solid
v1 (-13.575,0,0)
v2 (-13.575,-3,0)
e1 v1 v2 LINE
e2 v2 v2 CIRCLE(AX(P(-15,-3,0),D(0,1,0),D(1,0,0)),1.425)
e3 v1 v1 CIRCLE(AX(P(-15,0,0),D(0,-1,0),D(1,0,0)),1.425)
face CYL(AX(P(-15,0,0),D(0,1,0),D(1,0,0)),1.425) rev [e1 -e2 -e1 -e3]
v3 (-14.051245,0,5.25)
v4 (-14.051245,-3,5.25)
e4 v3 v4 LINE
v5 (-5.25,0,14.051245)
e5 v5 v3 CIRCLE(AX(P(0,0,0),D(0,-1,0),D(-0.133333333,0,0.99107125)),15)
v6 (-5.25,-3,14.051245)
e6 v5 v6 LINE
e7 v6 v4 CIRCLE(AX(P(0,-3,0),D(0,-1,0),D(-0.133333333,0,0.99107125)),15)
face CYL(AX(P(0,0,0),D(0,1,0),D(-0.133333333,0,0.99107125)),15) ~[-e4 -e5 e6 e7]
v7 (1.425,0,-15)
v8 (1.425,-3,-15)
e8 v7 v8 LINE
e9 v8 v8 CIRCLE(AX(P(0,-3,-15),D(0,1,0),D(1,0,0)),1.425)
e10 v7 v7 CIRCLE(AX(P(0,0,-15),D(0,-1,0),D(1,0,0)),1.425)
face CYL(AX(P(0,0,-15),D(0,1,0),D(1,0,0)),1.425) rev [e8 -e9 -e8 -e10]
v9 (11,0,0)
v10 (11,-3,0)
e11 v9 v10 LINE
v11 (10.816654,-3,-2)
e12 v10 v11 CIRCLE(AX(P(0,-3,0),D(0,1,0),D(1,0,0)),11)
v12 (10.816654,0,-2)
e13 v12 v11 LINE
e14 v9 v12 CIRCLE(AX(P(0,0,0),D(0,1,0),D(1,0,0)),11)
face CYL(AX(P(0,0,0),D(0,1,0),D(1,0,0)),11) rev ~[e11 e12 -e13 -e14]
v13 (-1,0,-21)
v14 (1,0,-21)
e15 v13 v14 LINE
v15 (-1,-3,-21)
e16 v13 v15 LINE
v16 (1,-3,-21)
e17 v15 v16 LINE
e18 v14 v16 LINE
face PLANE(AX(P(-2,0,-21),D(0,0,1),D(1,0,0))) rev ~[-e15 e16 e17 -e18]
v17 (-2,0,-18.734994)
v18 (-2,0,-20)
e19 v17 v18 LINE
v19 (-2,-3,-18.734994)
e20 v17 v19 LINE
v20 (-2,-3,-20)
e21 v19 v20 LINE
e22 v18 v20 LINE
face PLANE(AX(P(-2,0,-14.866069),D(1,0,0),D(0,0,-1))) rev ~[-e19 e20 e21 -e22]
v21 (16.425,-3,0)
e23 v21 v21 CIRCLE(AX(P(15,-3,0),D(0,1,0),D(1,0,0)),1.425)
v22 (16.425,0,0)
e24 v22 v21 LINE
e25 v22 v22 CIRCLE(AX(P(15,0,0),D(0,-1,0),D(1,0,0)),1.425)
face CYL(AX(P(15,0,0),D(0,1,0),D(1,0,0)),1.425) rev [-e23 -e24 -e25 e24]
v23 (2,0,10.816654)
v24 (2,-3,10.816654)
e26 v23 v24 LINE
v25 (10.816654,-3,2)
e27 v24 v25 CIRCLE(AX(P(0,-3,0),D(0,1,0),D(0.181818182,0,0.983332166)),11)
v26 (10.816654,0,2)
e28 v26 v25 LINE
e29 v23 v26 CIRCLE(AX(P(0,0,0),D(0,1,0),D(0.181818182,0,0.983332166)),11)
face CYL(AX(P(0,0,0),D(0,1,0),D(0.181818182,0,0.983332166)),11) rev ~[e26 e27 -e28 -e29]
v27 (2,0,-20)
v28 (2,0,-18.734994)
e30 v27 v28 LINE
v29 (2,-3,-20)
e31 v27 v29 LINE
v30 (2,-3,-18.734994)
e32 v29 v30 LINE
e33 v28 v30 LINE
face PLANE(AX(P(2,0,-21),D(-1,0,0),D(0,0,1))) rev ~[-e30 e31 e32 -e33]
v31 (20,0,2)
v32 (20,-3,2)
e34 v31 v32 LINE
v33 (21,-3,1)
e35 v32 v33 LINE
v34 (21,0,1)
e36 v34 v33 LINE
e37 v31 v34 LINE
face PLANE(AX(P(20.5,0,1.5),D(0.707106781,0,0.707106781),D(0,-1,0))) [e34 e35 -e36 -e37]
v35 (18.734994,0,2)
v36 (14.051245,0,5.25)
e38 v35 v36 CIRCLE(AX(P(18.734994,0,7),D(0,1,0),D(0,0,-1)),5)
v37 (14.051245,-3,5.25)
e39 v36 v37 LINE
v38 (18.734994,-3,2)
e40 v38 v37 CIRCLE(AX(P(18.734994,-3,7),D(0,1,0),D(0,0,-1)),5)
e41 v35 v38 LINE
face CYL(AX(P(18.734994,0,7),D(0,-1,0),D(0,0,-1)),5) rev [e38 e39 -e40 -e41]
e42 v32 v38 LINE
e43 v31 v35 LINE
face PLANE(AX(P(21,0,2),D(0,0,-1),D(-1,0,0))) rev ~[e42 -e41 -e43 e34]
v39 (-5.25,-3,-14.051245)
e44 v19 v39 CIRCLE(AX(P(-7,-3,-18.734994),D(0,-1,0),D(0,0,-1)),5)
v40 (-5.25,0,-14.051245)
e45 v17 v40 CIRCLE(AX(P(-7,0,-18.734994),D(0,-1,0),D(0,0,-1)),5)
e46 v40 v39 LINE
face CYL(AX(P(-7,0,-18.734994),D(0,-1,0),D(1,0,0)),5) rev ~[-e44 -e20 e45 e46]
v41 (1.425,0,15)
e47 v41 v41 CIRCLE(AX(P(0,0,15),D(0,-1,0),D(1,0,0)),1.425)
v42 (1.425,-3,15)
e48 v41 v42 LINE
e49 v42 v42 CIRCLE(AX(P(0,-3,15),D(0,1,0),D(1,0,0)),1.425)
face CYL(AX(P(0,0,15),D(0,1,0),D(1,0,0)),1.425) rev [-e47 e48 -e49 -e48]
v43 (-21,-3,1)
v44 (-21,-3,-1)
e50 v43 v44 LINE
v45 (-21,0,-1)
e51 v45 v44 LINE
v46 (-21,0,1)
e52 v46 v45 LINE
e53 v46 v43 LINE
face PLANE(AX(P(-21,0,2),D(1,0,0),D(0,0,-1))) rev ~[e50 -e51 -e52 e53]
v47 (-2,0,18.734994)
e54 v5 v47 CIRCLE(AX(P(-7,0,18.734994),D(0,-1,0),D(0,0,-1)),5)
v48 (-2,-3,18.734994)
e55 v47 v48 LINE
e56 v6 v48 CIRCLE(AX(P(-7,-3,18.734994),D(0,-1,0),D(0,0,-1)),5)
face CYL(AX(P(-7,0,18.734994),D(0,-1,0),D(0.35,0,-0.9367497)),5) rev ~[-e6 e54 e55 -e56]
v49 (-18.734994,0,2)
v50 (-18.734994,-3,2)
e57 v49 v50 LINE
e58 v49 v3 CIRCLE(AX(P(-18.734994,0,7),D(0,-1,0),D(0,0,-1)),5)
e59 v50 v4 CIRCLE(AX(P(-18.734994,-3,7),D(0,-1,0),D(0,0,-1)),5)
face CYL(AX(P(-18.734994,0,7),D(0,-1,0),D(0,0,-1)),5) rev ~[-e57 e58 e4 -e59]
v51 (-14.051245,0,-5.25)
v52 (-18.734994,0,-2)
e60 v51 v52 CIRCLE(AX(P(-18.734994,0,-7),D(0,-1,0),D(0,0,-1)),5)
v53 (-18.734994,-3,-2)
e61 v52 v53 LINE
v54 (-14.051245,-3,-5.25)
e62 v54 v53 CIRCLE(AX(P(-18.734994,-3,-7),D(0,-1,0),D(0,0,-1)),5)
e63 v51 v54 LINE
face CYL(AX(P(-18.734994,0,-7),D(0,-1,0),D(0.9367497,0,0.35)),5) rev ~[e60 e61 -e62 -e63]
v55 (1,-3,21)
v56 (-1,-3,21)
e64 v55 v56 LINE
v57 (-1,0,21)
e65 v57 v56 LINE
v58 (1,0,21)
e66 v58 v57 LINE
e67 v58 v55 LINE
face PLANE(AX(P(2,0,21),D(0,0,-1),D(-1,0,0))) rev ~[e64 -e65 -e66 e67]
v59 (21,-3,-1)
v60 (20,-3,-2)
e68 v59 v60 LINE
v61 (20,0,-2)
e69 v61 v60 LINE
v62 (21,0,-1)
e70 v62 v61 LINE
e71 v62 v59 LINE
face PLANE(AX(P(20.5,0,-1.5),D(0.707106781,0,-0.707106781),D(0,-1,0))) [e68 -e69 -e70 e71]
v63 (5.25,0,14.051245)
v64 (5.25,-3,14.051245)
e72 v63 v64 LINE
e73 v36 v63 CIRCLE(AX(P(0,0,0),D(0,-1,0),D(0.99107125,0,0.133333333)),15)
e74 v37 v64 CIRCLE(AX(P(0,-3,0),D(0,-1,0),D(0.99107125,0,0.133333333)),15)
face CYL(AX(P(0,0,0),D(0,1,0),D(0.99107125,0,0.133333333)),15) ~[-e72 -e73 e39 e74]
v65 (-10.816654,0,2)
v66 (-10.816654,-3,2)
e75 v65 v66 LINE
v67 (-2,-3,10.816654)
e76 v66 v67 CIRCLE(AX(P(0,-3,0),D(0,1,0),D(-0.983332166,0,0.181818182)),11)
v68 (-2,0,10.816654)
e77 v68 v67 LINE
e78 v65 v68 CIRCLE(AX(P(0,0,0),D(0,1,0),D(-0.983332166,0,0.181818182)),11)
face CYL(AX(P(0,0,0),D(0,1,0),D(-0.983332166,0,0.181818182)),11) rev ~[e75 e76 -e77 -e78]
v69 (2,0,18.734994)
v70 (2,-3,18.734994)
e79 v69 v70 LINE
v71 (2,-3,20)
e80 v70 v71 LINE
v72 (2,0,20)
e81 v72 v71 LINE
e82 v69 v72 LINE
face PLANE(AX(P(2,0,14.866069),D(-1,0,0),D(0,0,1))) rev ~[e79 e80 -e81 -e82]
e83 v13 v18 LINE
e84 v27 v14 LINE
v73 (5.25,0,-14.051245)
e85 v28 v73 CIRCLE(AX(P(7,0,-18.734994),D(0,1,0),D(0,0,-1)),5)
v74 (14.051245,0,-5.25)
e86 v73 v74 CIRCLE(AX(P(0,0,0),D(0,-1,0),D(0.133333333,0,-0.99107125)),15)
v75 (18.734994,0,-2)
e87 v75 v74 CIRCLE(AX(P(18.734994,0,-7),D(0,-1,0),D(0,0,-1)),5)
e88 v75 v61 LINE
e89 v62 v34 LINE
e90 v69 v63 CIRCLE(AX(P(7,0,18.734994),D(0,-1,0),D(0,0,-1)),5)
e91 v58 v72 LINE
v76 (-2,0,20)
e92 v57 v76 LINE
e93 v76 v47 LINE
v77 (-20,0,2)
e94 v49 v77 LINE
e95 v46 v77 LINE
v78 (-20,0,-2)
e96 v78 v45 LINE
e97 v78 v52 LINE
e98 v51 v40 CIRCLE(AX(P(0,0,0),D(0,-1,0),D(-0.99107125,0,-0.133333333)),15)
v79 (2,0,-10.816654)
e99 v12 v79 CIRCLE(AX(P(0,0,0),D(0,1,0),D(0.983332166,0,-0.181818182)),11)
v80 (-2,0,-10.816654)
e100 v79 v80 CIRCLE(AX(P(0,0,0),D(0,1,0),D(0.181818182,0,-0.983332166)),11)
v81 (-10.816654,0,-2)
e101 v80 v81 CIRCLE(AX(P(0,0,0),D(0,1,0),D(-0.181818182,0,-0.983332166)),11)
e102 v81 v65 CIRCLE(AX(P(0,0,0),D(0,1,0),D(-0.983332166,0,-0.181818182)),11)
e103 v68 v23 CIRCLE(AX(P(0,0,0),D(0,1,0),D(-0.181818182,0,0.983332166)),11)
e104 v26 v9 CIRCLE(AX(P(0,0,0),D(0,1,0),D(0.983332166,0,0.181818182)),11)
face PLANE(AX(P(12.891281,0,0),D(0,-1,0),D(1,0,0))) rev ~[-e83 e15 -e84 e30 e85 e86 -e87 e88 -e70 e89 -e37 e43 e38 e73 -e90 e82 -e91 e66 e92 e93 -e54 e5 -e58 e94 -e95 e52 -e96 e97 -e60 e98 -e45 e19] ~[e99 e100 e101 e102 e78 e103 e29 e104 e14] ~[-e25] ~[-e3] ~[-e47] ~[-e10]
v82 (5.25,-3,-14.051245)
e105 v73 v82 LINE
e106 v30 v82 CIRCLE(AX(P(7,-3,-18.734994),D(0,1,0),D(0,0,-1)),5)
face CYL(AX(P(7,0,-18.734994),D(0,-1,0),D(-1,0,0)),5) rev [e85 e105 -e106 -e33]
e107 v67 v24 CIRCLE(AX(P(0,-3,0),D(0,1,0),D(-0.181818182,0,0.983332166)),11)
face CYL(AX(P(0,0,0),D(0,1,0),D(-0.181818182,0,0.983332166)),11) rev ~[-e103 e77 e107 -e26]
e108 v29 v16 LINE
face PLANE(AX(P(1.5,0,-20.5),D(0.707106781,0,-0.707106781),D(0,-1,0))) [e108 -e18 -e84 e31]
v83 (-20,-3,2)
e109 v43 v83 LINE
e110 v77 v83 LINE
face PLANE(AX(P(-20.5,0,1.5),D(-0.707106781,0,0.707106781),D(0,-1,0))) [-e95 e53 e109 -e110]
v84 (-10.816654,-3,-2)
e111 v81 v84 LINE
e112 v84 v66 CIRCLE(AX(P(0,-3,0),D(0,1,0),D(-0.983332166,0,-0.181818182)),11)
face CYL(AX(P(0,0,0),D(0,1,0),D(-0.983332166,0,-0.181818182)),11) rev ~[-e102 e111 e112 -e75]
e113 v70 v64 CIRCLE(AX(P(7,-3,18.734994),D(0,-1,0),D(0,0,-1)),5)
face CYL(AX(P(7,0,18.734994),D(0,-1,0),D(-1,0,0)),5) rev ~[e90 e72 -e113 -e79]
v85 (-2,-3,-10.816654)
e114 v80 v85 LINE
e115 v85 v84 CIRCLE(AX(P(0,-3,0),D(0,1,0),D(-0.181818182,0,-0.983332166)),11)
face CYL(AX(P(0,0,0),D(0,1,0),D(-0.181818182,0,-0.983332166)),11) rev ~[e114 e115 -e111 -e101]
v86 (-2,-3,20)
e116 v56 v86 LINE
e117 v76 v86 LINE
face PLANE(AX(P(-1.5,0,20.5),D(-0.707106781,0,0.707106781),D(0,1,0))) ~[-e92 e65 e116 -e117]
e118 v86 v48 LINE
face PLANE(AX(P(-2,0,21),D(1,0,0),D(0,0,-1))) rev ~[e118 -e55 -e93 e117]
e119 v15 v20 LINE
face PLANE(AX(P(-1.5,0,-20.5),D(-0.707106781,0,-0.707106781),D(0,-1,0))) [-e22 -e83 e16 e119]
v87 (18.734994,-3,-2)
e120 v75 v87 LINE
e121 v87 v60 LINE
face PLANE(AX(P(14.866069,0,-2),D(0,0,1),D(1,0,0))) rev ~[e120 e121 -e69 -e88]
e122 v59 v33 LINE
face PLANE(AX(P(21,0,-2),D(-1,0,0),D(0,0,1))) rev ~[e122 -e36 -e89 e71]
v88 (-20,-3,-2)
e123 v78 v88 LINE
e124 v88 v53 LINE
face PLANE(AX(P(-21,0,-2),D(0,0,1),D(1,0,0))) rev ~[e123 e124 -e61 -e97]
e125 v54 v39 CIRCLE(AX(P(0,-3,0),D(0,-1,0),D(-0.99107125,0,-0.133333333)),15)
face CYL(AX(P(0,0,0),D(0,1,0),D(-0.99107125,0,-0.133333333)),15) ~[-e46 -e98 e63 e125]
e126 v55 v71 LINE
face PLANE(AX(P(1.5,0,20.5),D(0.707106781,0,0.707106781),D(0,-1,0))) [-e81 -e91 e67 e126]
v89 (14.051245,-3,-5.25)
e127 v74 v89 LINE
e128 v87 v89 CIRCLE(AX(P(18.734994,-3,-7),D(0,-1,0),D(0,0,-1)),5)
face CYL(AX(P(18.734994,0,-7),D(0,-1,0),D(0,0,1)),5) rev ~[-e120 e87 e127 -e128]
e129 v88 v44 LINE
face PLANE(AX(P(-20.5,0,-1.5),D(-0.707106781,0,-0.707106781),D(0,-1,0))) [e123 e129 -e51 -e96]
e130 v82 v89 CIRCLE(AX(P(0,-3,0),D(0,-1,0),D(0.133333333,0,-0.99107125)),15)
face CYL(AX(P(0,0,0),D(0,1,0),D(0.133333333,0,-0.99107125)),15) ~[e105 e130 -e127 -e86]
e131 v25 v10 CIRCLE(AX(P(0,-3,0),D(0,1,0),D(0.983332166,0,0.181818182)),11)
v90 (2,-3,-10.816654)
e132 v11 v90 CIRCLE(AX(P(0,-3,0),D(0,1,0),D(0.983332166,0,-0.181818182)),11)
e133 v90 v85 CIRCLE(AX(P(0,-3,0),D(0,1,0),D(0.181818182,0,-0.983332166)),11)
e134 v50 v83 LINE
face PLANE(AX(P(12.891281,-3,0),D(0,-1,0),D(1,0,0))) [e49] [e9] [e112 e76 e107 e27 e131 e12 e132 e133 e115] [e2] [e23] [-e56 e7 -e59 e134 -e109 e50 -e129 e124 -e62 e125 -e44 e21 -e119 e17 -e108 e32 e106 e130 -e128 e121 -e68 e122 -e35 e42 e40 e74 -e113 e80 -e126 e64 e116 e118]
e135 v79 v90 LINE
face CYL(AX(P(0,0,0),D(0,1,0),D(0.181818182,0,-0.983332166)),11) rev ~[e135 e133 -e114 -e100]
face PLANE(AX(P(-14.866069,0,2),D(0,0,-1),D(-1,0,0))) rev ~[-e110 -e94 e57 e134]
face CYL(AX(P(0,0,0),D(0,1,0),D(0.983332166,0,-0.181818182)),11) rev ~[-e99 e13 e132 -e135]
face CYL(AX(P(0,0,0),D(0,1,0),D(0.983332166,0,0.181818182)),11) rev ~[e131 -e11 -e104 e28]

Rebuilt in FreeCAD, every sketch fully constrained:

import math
import FreeCAD as App
import Part
import Sketcher

V = App.Vector
Q = App.Units.Quantity


def edges_at(feature, points):
    """Names of the edges that pass closest to the given points."""
    edges = feature.Shape.Edges
    near = lambda p: min(range(len(edges)), key=lambda i: edges[i].distToShape(Part.Vertex(*p))[0])
    return sorted({f"Edge{near(p) + 1}" for p in points})

doc = App.newDocument("Part")
body = doc.addObject("PartDesign::Body", "Body")

sketch1 = doc.addObject("Sketcher::SketchObject", "Sketch")
body.addObject(sketch1)
sketch1.AttachmentSupport = (doc.XZ_Plane, [""])
sketch1.MapMode = "FlatFace"
sketch1.addGeometry(Part.ArcOfCircle(Part.Circle(V(0, 0, 0), V(0, 0, 1), 15), math.radians(-172), math.radians(-98)), False)
sketch1.addGeometry(Part.LineSegment(V(-2, -14.9, 0), V(-2, -21, 0)), False)
sketch1.addGeometry(Part.LineSegment(V(-2, -21, 0), V(2, -21, 0)), False)
sketch1.addGeometry(Part.LineSegment(V(2, -21, 0), V(2, -14.9, 0)), False)
sketch1.addGeometry(Part.ArcOfCircle(Part.Circle(V(0, 0, 0), V(0, 0, 1), 15), math.radians(-82), math.radians(-8)), False)
sketch1.addGeometry(Part.LineSegment(V(14.9, -2, 0), V(21, -2, 0)), False)
sketch1.addGeometry(Part.LineSegment(V(21, -2, 0), V(21, 2, 0)), False)
sketch1.addGeometry(Part.LineSegment(V(21, 2, 0), V(14.9, 2, 0)), False)
sketch1.addGeometry(Part.ArcOfCircle(Part.Circle(V(0, 0, 0), V(0, 0, 1), 15), math.radians(8), math.radians(82)), False)
sketch1.addGeometry(Part.LineSegment(V(2, 14.9, 0), V(2, 21, 0)), False)
sketch1.addGeometry(Part.LineSegment(V(2, 21, 0), V(-2, 21, 0)), False)
sketch1.addGeometry(Part.LineSegment(V(-2, 21, 0), V(-2, 14.9, 0)), False)
sketch1.addGeometry(Part.ArcOfCircle(Part.Circle(V(0, 0, 0), V(0, 0, 1), 15), math.radians(98), math.radians(172)), False)
sketch1.addGeometry(Part.LineSegment(V(-14.9, 2, 0), V(-21, 2, 0)), False)
sketch1.addGeometry(Part.LineSegment(V(-21, 2, 0), V(-21, -2, 0)), False)
sketch1.addGeometry(Part.LineSegment(V(-21, -2, 0), V(-14.9, -2, 0)), False)
sketch1.addGeometry(Part.ArcOfCircle(Part.Circle(V(0, 0, 0), V(0, 0, 1), 11), math.radians(0), math.radians(10.48)), False)
sketch1.addGeometry(Part.ArcOfCircle(Part.Circle(V(0, 0, 0), V(0, 0, 1), 11), math.radians(-10.48), math.radians(0)), False)
sketch1.addGeometry(Part.ArcOfCircle(Part.Circle(V(0, 0, 0), V(0, 0, 1), 11), math.radians(-80), math.radians(-10)), False)
sketch1.addGeometry(Part.ArcOfCircle(Part.Circle(V(0, 0, 0), V(0, 0, 1), 11), math.radians(-100), math.radians(-80)), False)
sketch1.addGeometry(Part.ArcOfCircle(Part.Circle(V(0, 0, 0), V(0, 0, 1), 11), math.radians(-170), math.radians(-100)), False)
sketch1.addGeometry(Part.ArcOfCircle(Part.Circle(V(0, 0, 0), V(0, 0, 1), 11), math.radians(170), math.radians(190)), False)
sketch1.addGeometry(Part.ArcOfCircle(Part.Circle(V(0, 0, 0), V(0, 0, 1), 11), math.radians(100), math.radians(170)), False)
sketch1.addGeometry(Part.ArcOfCircle(Part.Circle(V(0, 0, 0), V(0, 0, 1), 11), math.radians(80), math.radians(100)), False)
sketch1.addGeometry(Part.ArcOfCircle(Part.Circle(V(0, 0, 0), V(0, 0, 1), 11), math.radians(10), math.radians(80)), False)
sketch1.addConstraint(Sketcher.Constraint("Coincident", 0, 2, 1, 1))
sketch1.addConstraint(Sketcher.Constraint("Coincident", 1, 2, 2, 1))
sketch1.addConstraint(Sketcher.Constraint("Coincident", 2, 2, 3, 1))
sketch1.addConstraint(Sketcher.Constraint("Coincident", 3, 2, 4, 1))
sketch1.addConstraint(Sketcher.Constraint("Coincident", 4, 2, 5, 1))
sketch1.addConstraint(Sketcher.Constraint("Coincident", 5, 2, 6, 1))
sketch1.addConstraint(Sketcher.Constraint("Coincident", 6, 2, 7, 1))
sketch1.addConstraint(Sketcher.Constraint("Coincident", 7, 2, 8, 1))
sketch1.addConstraint(Sketcher.Constraint("Coincident", 8, 2, 9, 1))
sketch1.addConstraint(Sketcher.Constraint("Coincident", 9, 2, 10, 1))
sketch1.addConstraint(Sketcher.Constraint("Coincident", 10, 2, 11, 1))
sketch1.addConstraint(Sketcher.Constraint("Coincident", 11, 2, 12, 1))
sketch1.addConstraint(Sketcher.Constraint("Coincident", 12, 2, 13, 1))
sketch1.addConstraint(Sketcher.Constraint("Coincident", 13, 2, 14, 1))
sketch1.addConstraint(Sketcher.Constraint("Coincident", 14, 2, 15, 1))
sketch1.addConstraint(Sketcher.Constraint("Coincident", 15, 2, 0, 1))
sketch1.addConstraint(Sketcher.Constraint("Tangent", 16, 1, 17, 2))
sketch1.addConstraint(Sketcher.Constraint("Tangent", 17, 1, 18, 2))
sketch1.addConstraint(Sketcher.Constraint("Tangent", 18, 1, 19, 2))
sketch1.addConstraint(Sketcher.Constraint("Tangent", 19, 1, 20, 2))
sketch1.addConstraint(Sketcher.Constraint("Tangent", 20, 1, 21, 2))
sketch1.addConstraint(Sketcher.Constraint("Tangent", 21, 1, 22, 2))
sketch1.addConstraint(Sketcher.Constraint("Tangent", 22, 1, 23, 2))
sketch1.addConstraint(Sketcher.Constraint("Tangent", 23, 1, 24, 2))
sketch1.addConstraint(Sketcher.Constraint("Tangent", 24, 1, 16, 2))
sketch1.addConstraint(Sketcher.Constraint("Vertical", 1))
sketch1.addConstraint(Sketcher.Constraint("Horizontal", 2))
sketch1.addConstraint(Sketcher.Constraint("Vertical", 3))
sketch1.addConstraint(Sketcher.Constraint("Horizontal", 5))
sketch1.addConstraint(Sketcher.Constraint("Vertical", 6))
sketch1.addConstraint(Sketcher.Constraint("Horizontal", 7))
sketch1.addConstraint(Sketcher.Constraint("Vertical", 9))
sketch1.addConstraint(Sketcher.Constraint("Horizontal", 10))
sketch1.addConstraint(Sketcher.Constraint("Vertical", 11))
sketch1.addConstraint(Sketcher.Constraint("Horizontal", 13))
sketch1.addConstraint(Sketcher.Constraint("Vertical", 14))
sketch1.addConstraint(Sketcher.Constraint("Horizontal", 15))
sketch1.addConstraint(Sketcher.Constraint("Coincident", 0, 3, -1, 1))
sketch1.addConstraint(Sketcher.Constraint("Coincident", 4, 3, -1, 1))
sketch1.addConstraint(Sketcher.Constraint("Coincident", 8, 3, -1, 1))
sketch1.addConstraint(Sketcher.Constraint("Coincident", 12, 3, -1, 1))
sketch1.addConstraint(Sketcher.Constraint("Coincident", 16, 3, -1, 1))
sketch1.addConstraint(Sketcher.Constraint("Coincident", 18, 3, -1, 1))
sketch1.addConstraint(Sketcher.Constraint("Coincident", 20, 3, -1, 1))
sketch1.addConstraint(Sketcher.Constraint("Coincident", 22, 3, -1, 1))
sketch1.addConstraint(Sketcher.Constraint("Equal", 0, 4))
sketch1.addConstraint(Sketcher.Constraint("Equal", 4, 8))
sketch1.addConstraint(Sketcher.Constraint("Equal", 8, 12))
sketch1.addConstraint(Sketcher.Constraint("Symmetric", 1, 2, 9, 2, -1, 1))
sketch1.addConstraint(Sketcher.Constraint("Symmetric", 5, 2, 13, 2, -1, 1))
sketch1.addConstraint(Sketcher.Constraint("PointOnObject", 16, 1, -1))
sketch1.addConstraint(Sketcher.Constraint("Horizontal", 0, 2, 3, 2))
sketch1.addConstraint(Sketcher.Constraint("Horizontal", 8, 2, 11, 2))
sketch1.addConstraint(Sketcher.Constraint("Horizontal", 7, 2, 12, 2))
sketch1.addConstraint(Sketcher.Constraint("Horizontal", 5, 2, 14, 2))
sketch1.addConstraint(Sketcher.Constraint("Horizontal", 15, 2, 17, 1))
sketch1.addConstraint(Sketcher.Constraint("Horizontal", 18, 1, 19, 1))
sketch1.addConstraint(Sketcher.Constraint("Horizontal", 17, 1, 20, 1))
sketch1.addConstraint(Sketcher.Constraint("Horizontal", 13, 2, 21, 1))
sketch1.addConstraint(Sketcher.Constraint("Horizontal", 22, 1, 23, 1))
sketch1.addConstraint(Sketcher.Constraint("Horizontal", 21, 1, 24, 1))
sketch1.addConstraint(Sketcher.Constraint("Vertical", 9, 2, 18, 1))
sketch1.addConstraint(Sketcher.Constraint("Vertical", 19, 1, 22, 1))
sketch1.addConstraint(Sketcher.Constraint("Equal", 15, 1))
sketch1.addConstraint(Sketcher.Constraint("Equal", 10, 6))
sketch1.addConstraint(Sketcher.Constraint("Radius", 0, Q("15 mm")))
sketch1.addConstraint(Sketcher.Constraint("Radius", 16, Q("11 mm")))
sketch1.addConstraint(Sketcher.Constraint("DistanceX", 2, 1, 2, 2, Q("4 mm")))
sketch1.addConstraint(Sketcher.Constraint("DistanceY", 1, 2, -1, 1, Q("21 mm")))
pad1 = doc.addObject("PartDesign::Pad", "Pad")
body.addObject(pad1)
pad1.Profile = sketch1
pad1.Length = 3
doc.recompute()

chamfer = doc.addObject("PartDesign::Chamfer", "Chamfer")
body.addObject(chamfer)
chamfer.Base = (pad1, edges_at(pad1, [(-2, -1.5, 21)]))
chamfer.Size = 1
doc.recompute()

chamfer2 = doc.addObject("PartDesign::Chamfer", "Chamfer001")
body.addObject(chamfer2)
chamfer2.Base = (chamfer, edges_at(chamfer, [(2, -1.5, 21)]))
chamfer2.Size = 1
doc.recompute()

chamfer3 = doc.addObject("PartDesign::Chamfer", "Chamfer002")
body.addObject(chamfer3)
chamfer3.Base = (chamfer2, edges_at(chamfer2, [(21, -1.5, 2), (21, -1.5, -2)]))
chamfer3.Size = 1
doc.recompute()

chamfer4 = doc.addObject("PartDesign::Chamfer", "Chamfer003")
body.addObject(chamfer4)
chamfer4.Base = (chamfer3, edges_at(chamfer3, [(2, -1.5, -21), (-2, -1.5, -21)]))
chamfer4.Size = 1
doc.recompute()

chamfer5 = doc.addObject("PartDesign::Chamfer", "Chamfer004")
body.addObject(chamfer5)
chamfer5.Base = (chamfer4, edges_at(chamfer4, [(-21, -1.5, 2), (-21, -1.5, -2)]))
chamfer5.Size = 1

sketch2 = doc.addObject("Sketcher::SketchObject", "Sketch001")
body.addObject(sketch2)
sketch2.AttachmentSupport = (doc.XZ_Plane, [""])
sketch2.MapMode = "FlatFace"
sketch2.addGeometry(Part.Circle(V(0, 15, 0), V(0, 0, 1), 1.4), False)
sketch2.addGeometry(Part.Circle(V(15, 0, 0), V(0, 0, 1), 1.4), False)
sketch2.addGeometry(Part.Circle(V(-15, 0, 0), V(0, 0, 1), 1.4), False)
sketch2.addGeometry(Part.Circle(V(0, -15, 0), V(0, 0, 1), 1.4), False)
sketch2.addConstraint(Sketcher.Constraint("Equal", 0, 1))
sketch2.addConstraint(Sketcher.Constraint("Equal", 1, 2))
sketch2.addConstraint(Sketcher.Constraint("Equal", 2, 3))
sketch2.addConstraint(Sketcher.Constraint("Symmetric", 1, 3, 2, 3, -1, 1))
sketch2.addConstraint(Sketcher.Constraint("Symmetric", 0, 3, 3, 3, -1, 1))
sketch2.addConstraint(Sketcher.Constraint("PointOnObject", 0, 3, -2))
sketch2.addConstraint(Sketcher.Constraint("PointOnObject", 1, 3, -1))
sketch2.addConstraint(Sketcher.Constraint("Diameter", 0, Q("2.85 mm")))
sketch2.addConstraint(Sketcher.Constraint("DistanceY", -1, 1, 0, 3, Q("15 mm")))
sketch2.addConstraint(Sketcher.Constraint("DistanceX", -1, 1, 1, 3, Q("15 mm")))
pocket1 = doc.addObject("PartDesign::Pocket", "Pocket")
body.addObject(pocket1)
pocket1.Profile = sketch2
pocket1.Type = "ThroughAll"
pocket1.Reversed = True
doc.recompute()

fillet = doc.addObject("PartDesign::Fillet", "Fillet")
body.addObject(fillet)
fillet.Base = (pocket1, edges_at(pocket1, [(-2, -1.5, 14.866)]))
fillet.Radius = 5
doc.recompute()

fillet2 = doc.addObject("PartDesign::Fillet", "Fillet001")
body.addObject(fillet2)
fillet2.Base = (fillet, edges_at(fillet, [(2, -1.5, 14.866)]))
fillet2.Radius = 5
doc.recompute()

fillet3 = doc.addObject("PartDesign::Fillet", "Fillet002")
body.addObject(fillet3)
fillet3.Base = (fillet2, edges_at(fillet2, [(14.866, -1.5, -2)]))
fillet3.Radius = 5
doc.recompute()

fillet4 = doc.addObject("PartDesign::Fillet", "Fillet003")
body.addObject(fillet4)
fillet4.Base = (fillet3, edges_at(fillet3, [(-2, -1.5, -14.866)]))
fillet4.Radius = 5
doc.recompute()

fillet5 = doc.addObject("PartDesign::Fillet", "Fillet004")
body.addObject(fillet5)
fillet5.Base = (fillet4, edges_at(fillet4, [(2, -1.5, -14.866)]))
fillet5.Radius = 5
doc.recompute()

fillet6 = doc.addObject("PartDesign::Fillet", "Fillet005")
body.addObject(fillet6)
fillet6.Base = (fillet5, edges_at(fillet5, [(14.866, -1.5, 2)]))
fillet6.Radius = 5
doc.recompute()

fillet7 = doc.addObject("PartDesign::Fillet", "Fillet006")
body.addObject(fillet7)
fillet7.Base = (fillet6, edges_at(fillet6, [(-14.866, -1.5, -2)]))
fillet7.Radius = 5
doc.recompute()

fillet8 = doc.addObject("PartDesign::Fillet", "Fillet007")
body.addObject(fillet8)
fillet8.Base = (fillet7, edges_at(fillet7, [(-14.866, -1.5, 2)]))
fillet8.Radius = 5

doc.recompute()
